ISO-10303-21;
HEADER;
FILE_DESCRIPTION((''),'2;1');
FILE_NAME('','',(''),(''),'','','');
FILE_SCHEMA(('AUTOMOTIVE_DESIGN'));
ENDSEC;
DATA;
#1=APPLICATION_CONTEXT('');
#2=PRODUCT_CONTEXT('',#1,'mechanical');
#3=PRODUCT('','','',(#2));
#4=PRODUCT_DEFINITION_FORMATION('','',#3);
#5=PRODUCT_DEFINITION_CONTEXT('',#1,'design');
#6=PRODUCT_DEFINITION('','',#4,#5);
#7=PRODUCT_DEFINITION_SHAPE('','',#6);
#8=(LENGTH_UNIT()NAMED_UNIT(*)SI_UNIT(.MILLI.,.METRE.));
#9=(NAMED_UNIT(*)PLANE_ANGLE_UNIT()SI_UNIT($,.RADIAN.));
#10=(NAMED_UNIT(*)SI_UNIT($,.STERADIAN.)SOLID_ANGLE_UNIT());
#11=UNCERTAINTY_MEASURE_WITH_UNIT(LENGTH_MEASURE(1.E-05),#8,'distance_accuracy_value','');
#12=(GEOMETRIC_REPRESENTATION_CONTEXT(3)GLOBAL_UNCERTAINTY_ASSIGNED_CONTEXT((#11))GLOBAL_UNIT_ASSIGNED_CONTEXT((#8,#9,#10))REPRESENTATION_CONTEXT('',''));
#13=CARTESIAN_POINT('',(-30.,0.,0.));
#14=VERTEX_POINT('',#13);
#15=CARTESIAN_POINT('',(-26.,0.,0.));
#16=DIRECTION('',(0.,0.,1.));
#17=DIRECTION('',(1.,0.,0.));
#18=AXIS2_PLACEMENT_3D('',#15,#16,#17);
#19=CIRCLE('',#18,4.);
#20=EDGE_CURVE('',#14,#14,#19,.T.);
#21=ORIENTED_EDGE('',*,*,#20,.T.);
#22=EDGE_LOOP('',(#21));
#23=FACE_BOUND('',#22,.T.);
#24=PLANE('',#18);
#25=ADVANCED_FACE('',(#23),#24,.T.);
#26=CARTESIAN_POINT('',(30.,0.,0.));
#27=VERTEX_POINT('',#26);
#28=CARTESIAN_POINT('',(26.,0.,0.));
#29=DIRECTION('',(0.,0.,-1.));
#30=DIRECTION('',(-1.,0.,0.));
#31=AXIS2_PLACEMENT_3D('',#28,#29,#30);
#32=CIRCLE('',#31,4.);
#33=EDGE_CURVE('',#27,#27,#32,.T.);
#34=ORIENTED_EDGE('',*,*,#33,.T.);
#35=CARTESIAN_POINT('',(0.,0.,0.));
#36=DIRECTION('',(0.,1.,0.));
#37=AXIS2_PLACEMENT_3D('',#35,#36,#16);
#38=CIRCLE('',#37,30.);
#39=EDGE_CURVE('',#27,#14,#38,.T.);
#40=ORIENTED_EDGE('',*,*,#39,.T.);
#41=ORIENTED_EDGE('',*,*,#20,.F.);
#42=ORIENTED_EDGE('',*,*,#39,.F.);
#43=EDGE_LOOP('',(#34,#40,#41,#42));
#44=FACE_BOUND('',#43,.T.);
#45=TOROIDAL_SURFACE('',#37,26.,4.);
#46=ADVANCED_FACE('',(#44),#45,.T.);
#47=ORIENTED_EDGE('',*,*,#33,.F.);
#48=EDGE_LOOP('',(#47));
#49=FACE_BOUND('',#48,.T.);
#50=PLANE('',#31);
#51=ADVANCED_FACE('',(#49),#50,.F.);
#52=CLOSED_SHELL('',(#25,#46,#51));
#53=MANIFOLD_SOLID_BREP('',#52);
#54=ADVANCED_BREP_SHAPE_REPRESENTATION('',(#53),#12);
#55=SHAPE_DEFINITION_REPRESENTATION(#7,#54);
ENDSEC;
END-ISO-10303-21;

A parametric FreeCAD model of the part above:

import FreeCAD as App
import Part
import Sketcher
from FreeCAD import Vector
Q = App.Units.Quantity

doc = App.newDocument("Part")
body = doc.addObject("PartDesign::Body", "Body")

sketch1 = body.newObject("Sketcher::SketchObject", "Sketch")
sketch1.AttachmentSupport = (doc.getObject("XY_Plane"), [""])
sketch1.MapMode = "FlatFace"
sketch1.addGeometry(Part.Circle(Vector(-26, 0, 0), Vector(0, 0, 1), 4), False)
sketch1.addConstraint([
    Sketcher.Constraint("PointOnObject", 0, 3, -1),
    Sketcher.Constraint("Diameter", 0, Q("8 mm")),
    Sketcher.Constraint("DistanceX", 0, 3, -1, 1, Q("26 mm")),
])
revolution = body.newObject("PartDesign::Revolution", "Revolution")
revolution.Profile = sketch1
revolution.ReferenceAxis = (sketch1, ["V_Axis"])
revolution.Angle = 180
revolution.Reversed = True

doc.recompute()
